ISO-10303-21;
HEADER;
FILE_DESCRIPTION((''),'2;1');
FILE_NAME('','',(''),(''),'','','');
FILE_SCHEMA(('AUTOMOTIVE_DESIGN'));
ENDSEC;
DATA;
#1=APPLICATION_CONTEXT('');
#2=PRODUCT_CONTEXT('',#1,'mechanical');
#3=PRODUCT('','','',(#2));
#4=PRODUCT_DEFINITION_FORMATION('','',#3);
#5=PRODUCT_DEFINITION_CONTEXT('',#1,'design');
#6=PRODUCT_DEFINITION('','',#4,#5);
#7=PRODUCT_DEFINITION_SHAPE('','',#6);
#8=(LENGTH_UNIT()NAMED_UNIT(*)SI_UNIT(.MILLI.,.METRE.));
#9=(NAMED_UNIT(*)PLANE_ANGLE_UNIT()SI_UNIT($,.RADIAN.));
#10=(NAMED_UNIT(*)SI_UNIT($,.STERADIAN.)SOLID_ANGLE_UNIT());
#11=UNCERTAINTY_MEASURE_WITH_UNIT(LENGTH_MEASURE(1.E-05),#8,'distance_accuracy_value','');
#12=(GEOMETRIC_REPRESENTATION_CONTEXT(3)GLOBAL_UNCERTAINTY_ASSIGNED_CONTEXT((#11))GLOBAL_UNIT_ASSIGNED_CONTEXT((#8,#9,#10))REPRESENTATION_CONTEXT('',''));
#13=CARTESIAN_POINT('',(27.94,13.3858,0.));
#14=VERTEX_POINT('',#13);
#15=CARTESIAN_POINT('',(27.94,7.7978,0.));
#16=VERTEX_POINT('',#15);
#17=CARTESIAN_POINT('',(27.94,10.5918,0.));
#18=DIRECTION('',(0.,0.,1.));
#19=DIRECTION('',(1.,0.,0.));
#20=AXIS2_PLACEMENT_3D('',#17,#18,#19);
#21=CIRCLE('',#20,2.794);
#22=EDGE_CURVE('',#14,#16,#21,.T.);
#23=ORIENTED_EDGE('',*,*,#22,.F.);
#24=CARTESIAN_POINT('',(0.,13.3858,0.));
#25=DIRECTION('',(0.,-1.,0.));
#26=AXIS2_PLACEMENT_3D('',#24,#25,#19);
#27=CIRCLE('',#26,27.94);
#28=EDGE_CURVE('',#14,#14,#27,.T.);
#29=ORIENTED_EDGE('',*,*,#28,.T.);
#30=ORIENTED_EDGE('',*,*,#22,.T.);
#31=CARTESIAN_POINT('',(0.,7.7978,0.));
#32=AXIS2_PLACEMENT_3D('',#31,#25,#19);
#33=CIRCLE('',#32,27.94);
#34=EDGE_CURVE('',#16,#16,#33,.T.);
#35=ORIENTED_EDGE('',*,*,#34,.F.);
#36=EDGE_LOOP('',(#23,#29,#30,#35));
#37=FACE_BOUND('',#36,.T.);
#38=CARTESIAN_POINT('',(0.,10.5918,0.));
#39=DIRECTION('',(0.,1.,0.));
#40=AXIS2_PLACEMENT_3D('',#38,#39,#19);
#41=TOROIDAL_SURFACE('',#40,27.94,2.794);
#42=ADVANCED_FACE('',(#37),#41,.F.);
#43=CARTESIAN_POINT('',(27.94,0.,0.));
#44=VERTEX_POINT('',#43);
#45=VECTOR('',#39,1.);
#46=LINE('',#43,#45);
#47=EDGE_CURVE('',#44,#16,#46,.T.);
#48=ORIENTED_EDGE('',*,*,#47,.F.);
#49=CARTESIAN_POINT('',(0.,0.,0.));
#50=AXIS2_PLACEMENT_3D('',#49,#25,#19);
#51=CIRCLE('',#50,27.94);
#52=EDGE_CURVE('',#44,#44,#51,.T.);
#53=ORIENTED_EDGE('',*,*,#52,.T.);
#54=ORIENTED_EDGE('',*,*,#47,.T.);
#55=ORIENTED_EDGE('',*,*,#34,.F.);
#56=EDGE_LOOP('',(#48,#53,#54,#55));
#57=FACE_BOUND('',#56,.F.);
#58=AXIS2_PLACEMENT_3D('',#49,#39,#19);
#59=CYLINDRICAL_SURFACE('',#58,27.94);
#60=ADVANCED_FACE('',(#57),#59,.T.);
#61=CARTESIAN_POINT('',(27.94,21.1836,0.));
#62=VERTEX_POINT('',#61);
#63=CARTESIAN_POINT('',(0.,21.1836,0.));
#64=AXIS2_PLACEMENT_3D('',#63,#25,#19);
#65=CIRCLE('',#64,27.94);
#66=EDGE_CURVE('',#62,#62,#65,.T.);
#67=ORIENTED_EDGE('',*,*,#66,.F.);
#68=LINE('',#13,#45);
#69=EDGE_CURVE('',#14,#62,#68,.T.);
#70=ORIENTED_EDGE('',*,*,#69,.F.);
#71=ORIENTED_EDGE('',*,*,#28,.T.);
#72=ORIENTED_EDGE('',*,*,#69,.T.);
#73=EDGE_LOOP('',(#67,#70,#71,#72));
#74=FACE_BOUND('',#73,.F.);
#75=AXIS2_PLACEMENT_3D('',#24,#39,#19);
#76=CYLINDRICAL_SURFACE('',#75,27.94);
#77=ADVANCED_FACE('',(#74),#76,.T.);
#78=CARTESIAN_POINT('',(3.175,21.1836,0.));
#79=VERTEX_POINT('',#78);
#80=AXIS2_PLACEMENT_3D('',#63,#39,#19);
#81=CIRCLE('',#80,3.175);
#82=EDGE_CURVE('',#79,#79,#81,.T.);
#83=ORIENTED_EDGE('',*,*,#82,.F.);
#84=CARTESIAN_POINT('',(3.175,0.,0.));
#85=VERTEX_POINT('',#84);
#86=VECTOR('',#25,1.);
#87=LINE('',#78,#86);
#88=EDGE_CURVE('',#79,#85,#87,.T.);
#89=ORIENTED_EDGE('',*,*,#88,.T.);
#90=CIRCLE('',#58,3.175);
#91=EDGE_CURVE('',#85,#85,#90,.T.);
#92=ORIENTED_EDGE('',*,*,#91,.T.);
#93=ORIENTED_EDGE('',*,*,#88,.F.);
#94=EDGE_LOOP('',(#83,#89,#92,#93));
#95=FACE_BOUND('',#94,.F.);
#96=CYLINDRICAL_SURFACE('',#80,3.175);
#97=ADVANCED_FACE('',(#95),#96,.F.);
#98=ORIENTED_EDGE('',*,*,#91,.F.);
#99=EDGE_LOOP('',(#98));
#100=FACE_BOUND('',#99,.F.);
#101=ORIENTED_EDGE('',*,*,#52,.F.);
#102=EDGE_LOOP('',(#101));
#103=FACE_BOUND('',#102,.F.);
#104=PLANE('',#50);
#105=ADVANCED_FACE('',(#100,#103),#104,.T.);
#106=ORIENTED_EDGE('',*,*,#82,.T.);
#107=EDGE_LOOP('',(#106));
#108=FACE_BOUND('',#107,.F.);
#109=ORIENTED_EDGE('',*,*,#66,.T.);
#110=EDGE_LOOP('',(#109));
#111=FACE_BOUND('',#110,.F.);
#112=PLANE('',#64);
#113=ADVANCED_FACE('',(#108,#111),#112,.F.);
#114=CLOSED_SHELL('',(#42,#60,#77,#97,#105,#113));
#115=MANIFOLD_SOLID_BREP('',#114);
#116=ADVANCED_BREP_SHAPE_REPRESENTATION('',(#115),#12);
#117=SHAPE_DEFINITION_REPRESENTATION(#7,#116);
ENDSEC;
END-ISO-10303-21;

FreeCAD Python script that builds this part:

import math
import FreeCAD as App
import Part
import Sketcher

V = App.Vector
Q = App.Units.Quantity

doc = App.newDocument("Part")
body = doc.addObject("PartDesign::Body", "Body")

# Sketch on XY plane
sketch1 = body.newObject("Sketcher::SketchObject", "Sketch")
sketch1.AttachmentSupport = (doc.getObject("XY_Plane"), [""])
sketch1.MapMode = "FlatFace"
sketch1.addGeometry(Part.LineSegment(V(0, 21.2, 0), V(0, 0, 0)), False)
sketch1.addGeometry(Part.LineSegment(V(0, 0, 0), V(27.9, 0, 0)), False)
sketch1.addGeometry(Part.LineSegment(V(27.9, 0, 0), V(27.9, 7.8, 0)), False)
sketch1.addGeometry(Part.ArcOfCircle(Part.Circle(V(27.9, 10.6, 0), V(0, 0, 1), 2.8), math.radians(90), math.radians(270)), False)
sketch1.addGeometry(Part.LineSegment(V(27.9, 13.4, 0), V(27.9, 21.2, 0)), False)
sketch1.addGeometry(Part.LineSegment(V(27.9, 21.2, 0), V(0, 21.2, 0)), False)
sketch1.addConstraint(Sketcher.Constraint("Coincident", 0, 2, 1, 1))
sketch1.addConstraint(Sketcher.Constraint("Coincident", 1, 2, 2, 1))
sketch1.addConstraint(Sketcher.Constraint("Coincident", 2, 2, 3, 2))
sketch1.addConstraint(Sketcher.Constraint("Coincident", 3, 1, 4, 1))
sketch1.addConstraint(Sketcher.Constraint("Coincident", 4, 2, 5, 1))
sketch1.addConstraint(Sketcher.Constraint("Coincident", 5, 2, 0, 1))
sketch1.addConstraint(Sketcher.Constraint("Vertical", 0))
sketch1.addConstraint(Sketcher.Constraint("Horizontal", 1))
sketch1.addConstraint(Sketcher.Constraint("Vertical", 2))
sketch1.addConstraint(Sketcher.Constraint("Vertical", 4))
sketch1.addConstraint(Sketcher.Constraint("Horizontal", 5))
sketch1.addConstraint(Sketcher.Constraint("Coincident", 0, 2, -1, 1))
sketch1.addConstraint(Sketcher.Constraint("Vertical", 3, 3, 1, 2))
sketch1.addConstraint(Sketcher.Constraint("Vertical", 2, 2, 3, 1))
sketch1.addConstraint(Sketcher.Constraint("Equal", 2, 4))
sketch1.addConstraint(Sketcher.Constraint("Radius", 3, Q("0.11 in")))
sketch1.addConstraint(Sketcher.Constraint("DistanceX", 1, 1, 1, 2, Q("1.1 in")))
sketch1.addConstraint(Sketcher.Constraint("DistanceY", 0, 2, 0, 1, Q("0.834 in")))
revolution = body.newObject("PartDesign::Revolution", "Revolution")
revolution.Profile = sketch1
revolution.ReferenceAxis = (sketch1, ["V_Axis"])
revolution.Angle = 360

# Sketch on XZ plane
sketch2 = body.newObject("Sketcher::SketchObject", "Sketch001")
sketch2.AttachmentSupport = (doc.getObject("XZ_Plane"), [""])
sketch2.MapMode = "FlatFace"
sketch2.AttachmentOffset = App.Placement(V(0, 0, -0.834 * 25.4), App.Rotation())
sketch2.addGeometry(Part.Circle(V(0, 0, 0), V(0, 0, 1), 3.2), False)
sketch2.addConstraint(Sketcher.Constraint("Coincident", 0, 3, -1, 1))
sketch2.addConstraint(Sketcher.Constraint("Diameter", 0, Q("0.25 in")))
pocket1 = body.newObject("PartDesign::Pocket", "Pocket")
pocket1.Profile = sketch2
pocket1.Length = Q("1 in")
pocket1.Reversed = True

doc.recompute()
